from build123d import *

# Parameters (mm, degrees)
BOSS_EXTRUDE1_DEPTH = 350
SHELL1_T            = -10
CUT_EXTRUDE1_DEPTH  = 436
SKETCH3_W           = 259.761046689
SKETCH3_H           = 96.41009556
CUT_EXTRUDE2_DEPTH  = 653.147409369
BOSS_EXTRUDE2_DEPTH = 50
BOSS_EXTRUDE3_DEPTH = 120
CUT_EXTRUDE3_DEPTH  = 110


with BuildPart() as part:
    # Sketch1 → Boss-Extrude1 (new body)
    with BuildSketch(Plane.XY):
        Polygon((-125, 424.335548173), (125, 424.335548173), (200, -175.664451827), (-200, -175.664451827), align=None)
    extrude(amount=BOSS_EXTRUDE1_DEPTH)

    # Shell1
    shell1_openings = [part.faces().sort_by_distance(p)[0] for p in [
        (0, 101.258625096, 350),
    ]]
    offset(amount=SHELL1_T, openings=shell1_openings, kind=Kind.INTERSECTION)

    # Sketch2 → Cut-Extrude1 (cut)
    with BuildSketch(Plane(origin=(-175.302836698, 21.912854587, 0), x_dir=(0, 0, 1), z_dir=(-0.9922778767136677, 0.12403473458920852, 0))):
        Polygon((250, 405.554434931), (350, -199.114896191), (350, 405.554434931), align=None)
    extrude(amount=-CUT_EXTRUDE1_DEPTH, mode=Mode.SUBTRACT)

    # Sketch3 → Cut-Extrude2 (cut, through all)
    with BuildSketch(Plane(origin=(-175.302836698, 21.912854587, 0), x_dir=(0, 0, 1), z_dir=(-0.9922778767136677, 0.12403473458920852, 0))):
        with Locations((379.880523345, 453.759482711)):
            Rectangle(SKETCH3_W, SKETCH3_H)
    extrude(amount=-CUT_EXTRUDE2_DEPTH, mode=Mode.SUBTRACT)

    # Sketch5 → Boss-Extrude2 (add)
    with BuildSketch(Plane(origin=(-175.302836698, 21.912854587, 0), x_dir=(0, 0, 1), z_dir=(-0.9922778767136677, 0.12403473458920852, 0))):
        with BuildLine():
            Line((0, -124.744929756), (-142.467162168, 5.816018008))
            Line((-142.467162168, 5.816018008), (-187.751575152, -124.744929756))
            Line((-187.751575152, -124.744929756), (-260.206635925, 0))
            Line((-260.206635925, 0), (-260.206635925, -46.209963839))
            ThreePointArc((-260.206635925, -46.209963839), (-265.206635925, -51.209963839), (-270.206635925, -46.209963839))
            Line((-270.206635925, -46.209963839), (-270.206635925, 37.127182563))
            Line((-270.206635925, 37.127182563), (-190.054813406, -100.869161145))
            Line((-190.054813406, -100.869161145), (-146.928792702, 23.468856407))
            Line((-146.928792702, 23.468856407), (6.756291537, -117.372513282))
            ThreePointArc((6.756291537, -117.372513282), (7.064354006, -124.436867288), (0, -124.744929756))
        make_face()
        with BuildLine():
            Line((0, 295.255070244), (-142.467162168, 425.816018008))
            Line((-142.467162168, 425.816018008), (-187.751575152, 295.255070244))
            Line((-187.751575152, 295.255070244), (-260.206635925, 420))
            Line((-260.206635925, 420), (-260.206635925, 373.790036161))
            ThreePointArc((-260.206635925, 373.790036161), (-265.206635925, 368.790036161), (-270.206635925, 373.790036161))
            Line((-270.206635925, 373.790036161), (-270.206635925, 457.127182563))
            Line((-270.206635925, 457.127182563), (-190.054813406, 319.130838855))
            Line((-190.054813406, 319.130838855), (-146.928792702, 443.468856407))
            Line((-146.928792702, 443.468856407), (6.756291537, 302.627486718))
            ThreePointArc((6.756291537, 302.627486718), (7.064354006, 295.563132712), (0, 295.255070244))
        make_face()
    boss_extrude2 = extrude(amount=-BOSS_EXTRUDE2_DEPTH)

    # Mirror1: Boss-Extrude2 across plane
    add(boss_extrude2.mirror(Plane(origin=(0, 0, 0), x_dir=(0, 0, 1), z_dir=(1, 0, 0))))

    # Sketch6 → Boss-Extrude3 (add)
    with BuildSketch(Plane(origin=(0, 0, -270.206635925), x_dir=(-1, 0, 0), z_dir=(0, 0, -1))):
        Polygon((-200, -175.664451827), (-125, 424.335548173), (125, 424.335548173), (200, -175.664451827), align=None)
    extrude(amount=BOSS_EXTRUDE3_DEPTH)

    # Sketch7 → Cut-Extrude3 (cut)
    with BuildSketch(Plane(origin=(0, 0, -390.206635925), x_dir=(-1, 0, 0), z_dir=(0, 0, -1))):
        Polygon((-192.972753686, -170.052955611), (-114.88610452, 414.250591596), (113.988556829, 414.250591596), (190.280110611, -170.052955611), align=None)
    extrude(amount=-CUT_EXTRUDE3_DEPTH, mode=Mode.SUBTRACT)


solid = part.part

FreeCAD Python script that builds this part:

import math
import FreeCAD as App
import Part
import Sketcher


def faces_at(feature, points):
    """Names of the faces that lie closest to the given points."""
    faces = feature.Shape.Faces
    near = lambda p: min(range(len(faces)), key=lambda i: faces[i].distToShape(Part.Vertex(*p))[0])
    return sorted({f"Face{near(p) + 1}" for p in points})

doc = App.newDocument("Part")
body = doc.addObject("PartDesign::Body", "Body")

# Sketch on XY plane
sketch1 = body.newObject("Sketcher::SketchObject", "Sketch")
sketch1.AttachmentSupport = (doc.getObject("XY_Plane"), [""])
sketch1.MapMode = "FlatFace"
sketch1.addGeometry([
    Part.LineSegment(App.Vector(125, 424, 0), App.Vector(-125, 424, 0)),
    Part.LineSegment(App.Vector(-125, 424, 0), App.Vector(-200, -176, 0)),
    Part.LineSegment(App.Vector(-200, -176, 0), App.Vector(200, -176, 0)),
    Part.LineSegment(App.Vector(200, -176, 0), App.Vector(125, 424, 0)),
], False)
sketch1.addConstraint([
    Sketcher.Constraint("Coincident", 0, 2, 1, 1),
    Sketcher.Constraint("Coincident", 1, 2, 2, 1),
    Sketcher.Constraint("Coincident", 2, 2, 3, 1),
    Sketcher.Constraint("Coincident", 3, 2, 0, 1),
    Sketcher.Constraint("Horizontal", 0),
    Sketcher.Constraint("Horizontal", 2),
    Sketcher.Constraint("Equal", 1, 3),
    Sketcher.Constraint("DistanceX", 0, 2, 0, 1, 250.0),
    Sketcher.Constraint("DistanceX", 2, 1, 2, 2, 400.0),
    Sketcher.Constraint("DistanceX", 0, 2, -1, 1, 125.0),
    Sketcher.Constraint("DistanceY", 1, 2, 0, 2, 600.0),
    Sketcher.Constraint("DistanceY", -1, 1, 0, 2, 424.335548),
])
pad1 = body.newObject("PartDesign::Pad", "Pad")
pad1.Profile = sketch1
pad1.Length = 350
doc.recompute()

thickness = body.newObject("PartDesign::Thickness", "Thickness")
thickness.Base = (pad1, faces_at(pad1, [(0, 124.336, 350)]))
thickness.Value = 10
thickness.Reversed = True
thickness.Join = "Intersection"

# Sketch on an angled plane
sketch2 = body.newObject("Sketcher::SketchObject", "Sketch001")
sketch2.Placement = App.Placement(App.Vector(-175.302837, 21.912855, 0), App.Rotation(App.Vector(0, 0, 1), App.Vector(0.124034735, 0.992277877, 0), App.Vector(-0.992277877, 0.124034735, 0), "ZXY"))
sketch2.addGeometry([
    Part.LineSegment(App.Vector(250, 406, 0), App.Vector(350, -199, 0)),
    Part.LineSegment(App.Vector(350, -199, 0), App.Vector(350, 406, 0)),
    Part.LineSegment(App.Vector(350, 406, 0), App.Vector(250, 406, 0)),
], False)
sketch2.addConstraint([
    Sketcher.Constraint("Coincident", 0, 2, 1, 1),
    Sketcher.Constraint("Coincident", 1, 2, 2, 1),
    Sketcher.Constraint("Coincident", 2, 2, 0, 1),
    Sketcher.Constraint("Vertical", 1),
    Sketcher.Constraint("Horizontal", 2),
    Sketcher.Constraint("DistanceX", 2, 2, 2, 1, 100.0),
    Sketcher.Constraint("DistanceX", -1, 1, 0, 2, 350.0),
    Sketcher.Constraint("DistanceY", 1, 1, 1, 2, 604.669332),
    Sketcher.Constraint("DistanceY", 0, 2, -1, 1, 199.114896),
])
pocket1 = body.newObject("PartDesign::Pocket", "Pocket")
pocket1.Profile = sketch2
pocket1.Length = 436

# Sketch on an angled plane
sketch3 = body.newObject("Sketcher::SketchObject", "Sketch002")
sketch3.Placement = App.Placement(App.Vector(-175.302837, 21.912855, 0), App.Rotation(App.Vector(0, 0, 1), App.Vector(0.124034735, 0.992277877, 0), App.Vector(-0.992277877, 0.124034735, 0), "ZXY"))
sketch3.addGeometry([
    Part.LineSegment(App.Vector(250, 502, 0), App.Vector(250, 406, 0)),
    Part.LineSegment(App.Vector(250, 406, 0), App.Vector(510, 406, 0)),
    Part.LineSegment(App.Vector(510, 406, 0), App.Vector(510, 502, 0)),
    Part.LineSegment(App.Vector(510, 502, 0), App.Vector(250, 502, 0)),
], False)
sketch3.addConstraint([
    Sketcher.Constraint("Coincident", 0, 2, 1, 1),
    Sketcher.Constraint("Coincident", 1, 2, 2, 1),
    Sketcher.Constraint("Coincident", 2, 2, 3, 1),
    Sketcher.Constraint("Coincident", 3, 2, 0, 1),
    Sketcher.Constraint("Vertical", 0),
    Sketcher.Constraint("Horizontal", 1),
    Sketcher.Constraint("Vertical", 2),
    Sketcher.Constraint("Horizontal", 3),
    Sketcher.Constraint("DistanceX", -1, 1, 0, 2, 250.0),
    Sketcher.Constraint("DistanceX", 1, 1, 1, 2, 259.761047),
    Sketcher.Constraint("DistanceY", 0, 2, 0, 1, 96.410096),
    Sketcher.Constraint("DistanceY", -1, 1, 2, 2, 501.964531),
])
pocket2 = body.newObject("PartDesign::Pocket", "Pocket001")
pocket2.Profile = sketch3
pocket2.Type = "ThroughAll"

# Sketch on an angled plane
sketch4 = body.newObject("Sketcher::SketchObject", "Sketch003")
sketch4.Placement = App.Placement(App.Vector(-175.302837, 21.912855, 0), App.Rotation(App.Vector(0, 0, 1), App.Vector(0.124034735, 0.992277877, 0), App.Vector(-0.992277877, 0.124034735, 0), "ZXY"))
sketch4.addGeometry([
    Part.LineSegment(App.Vector(-142.467162, 5.816018, 0), App.Vector(0, -124.74493, 0)),  # 0
    Part.ArcOfCircle(Part.Circle(App.Vector(3.378146, -121.058722, 0), App.Vector(0, 0, 1), 5), math.radians(-132.503027), math.radians(47.496973)),  # 1
    Part.LineSegment(App.Vector(6.756292, -117.372513, 0), App.Vector(-146.928793, 23.468856, 0)),  # 2
    Part.LineSegment(App.Vector(-146.928793, 23.468856, 0), App.Vector(-190.054813, -100.869161, 0)),  # 3
    Part.LineSegment(App.Vector(-190.054813, -100.869161, 0), App.Vector(-270.206636, 37.127183, 0)),  # 4
    Part.LineSegment(App.Vector(-270.206636, 37.127183, 0), App.Vector(-270.206636, -46.209964, 0)),  # 5
    Part.ArcOfCircle(Part.Circle(App.Vector(-265.206636, -46.209964, 0), App.Vector(0, 0, 1), 5), math.radians(180), math.radians(360)),  # 6
    Part.LineSegment(App.Vector(-260.206636, -46.209964, 0), App.Vector(-260.206636, 0, 0)),  # 7
    Part.LineSegment(App.Vector(-260.206636, 0, 0), App.Vector(-187.751575, -124.74493, 0)),  # 8
    Part.LineSegment(App.Vector(-187.751575, -124.74493, 0), App.Vector(-142.467162, 5.816018, 0)),  # 9
    Part.LineSegment(App.Vector(-142.467162, 425.816018, 0), App.Vector(0, 295.25507, 0)),  # 10
    Part.ArcOfCircle(Part.Circle(App.Vector(3.378146, 298.941279, 0), App.Vector(0, 0, 1), 5), math.radians(-132.503027), math.radians(47.496973)),  # 11
    Part.LineSegment(App.Vector(6.756292, 302.627487, 0), App.Vector(-146.928793, 443.468857, 0)),  # 12
    Part.LineSegment(App.Vector(-146.928793, 443.468857, 0), App.Vector(-190.054813, 319.130839, 0)),  # 13
    Part.LineSegment(App.Vector(-190.054813, 319.130839, 0), App.Vector(-270.206636, 457.127183, 0)),  # 14
    Part.LineSegment(App.Vector(-270.206636, 457.127183, 0), App.Vector(-270.206636, 373.790036, 0)),  # 15
    Part.ArcOfCircle(Part.Circle(App.Vector(-265.206636, 373.790036, 0), App.Vector(0, 0, 1), 5), math.radians(180), math.radians(360)),  # 16
    Part.LineSegment(App.Vector(-260.206636, 373.790036, 0), App.Vector(-260.206636, 420, 0)),  # 17
    Part.LineSegment(App.Vector(-260.206636, 420, 0), App.Vector(-187.751575, 295.25507, 0)),  # 18
    Part.LineSegment(App.Vector(-187.751575, 295.25507, 0), App.Vector(-142.467162, 425.816018, 0)),  # 19
], False)
sketch4.addConstraint([
    Sketcher.Constraint("Coincident", 0, 2, 1, 1),
    Sketcher.Constraint("Coincident", 1, 2, 2, 1),
    Sketcher.Constraint("Coincident", 2, 2, 3, 1),
    Sketcher.Constraint("Coincident", 3, 2, 4, 1),
    Sketcher.Constraint("Coincident", 4, 2, 5, 1),
    Sketcher.Constraint("Coincident", 5, 2, 6, 1),
    Sketcher.Constraint("Coincident", 6, 2, 7, 1),
    Sketcher.Constraint("Coincident", 7, 2, 8, 1),
    Sketcher.Constraint("Coincident", 8, 2, 9, 1),
    Sketcher.Constraint("Coincident", 9, 2, 0, 1),
    Sketcher.Constraint("Coincident", 10, 2, 11, 1),
    Sketcher.Constraint("Coincident", 11, 2, 12, 1),
    Sketcher.Constraint("Coincident", 12, 2, 13, 1),
    Sketcher.Constraint("Coincident", 13, 2, 14, 1),
    Sketcher.Constraint("Coincident", 14, 2, 15, 1),
    Sketcher.Constraint("Coincident", 15, 2, 16, 1),
    Sketcher.Constraint("Coincident", 16, 2, 17, 1),
    Sketcher.Constraint("Coincident", 17, 2, 18, 1),
    Sketcher.Constraint("Coincident", 18, 2, 19, 1),
    Sketcher.Constraint("Coincident", 19, 2, 10, 1),
    Sketcher.Constraint("Vertical", 5),
    Sketcher.Constraint("Vertical", 7),
    Sketcher.Constraint("Vertical", 15),
    Sketcher.Constraint("Vertical", 17),
    Sketcher.Constraint("PointOnObject", 0, 2, -2),
    Sketcher.Constraint("PointOnObject", 7, 2, -1),
    Sketcher.Constraint("PointOnObject", 10, 2, -2),
    Sketcher.Constraint("Radius", 1, 5.0),
    Sketcher.Constraint("Radius", 6, 5.0),
    Sketcher.Constraint("Radius", 11, 5.0),
    Sketcher.Constraint("Radius", 16, 5.0),
    Sketcher.Constraint("DistanceY", -1, 1, 17, 2, 420.0),
    Sketcher.Constraint("DistanceY", 1, 3, 11, 3, 420.0),
    Sketcher.Constraint("DistanceY", 6, 3, 16, 3, 420.0),
    Sketcher.Constraint("DistanceY", 2, 2, 12, 2, 420.0),
    Sketcher.Constraint("Distance", 0, 193.243508),
    Sketcher.Constraint("Distance", 2, 208.45958),
    Sketcher.Constraint("Distance", 4, 159.584791),
    Sketcher.Constraint("Distance", 10, 193.243508),
    Sketcher.Constraint("Distance", 12, 208.45958),
    Sketcher.Constraint("Distance", 14, 159.584791),
    Sketcher.Constraint("DistanceY", 5, 2, 5, 1, 83.337146),
    Sketcher.Constraint("DistanceY", 7, 1, 7, 2, 46.209964),
    Sketcher.Constraint("DistanceY", 15, 2, 15, 1, 83.337146),
    Sketcher.Constraint("DistanceY", 17, 1, 17, 2, 46.209964),
    Sketcher.Constraint("DistanceY", 1, 3, -1, 1, 121.058722),
    Sketcher.Constraint("DistanceY", 0, 2, -1, 1, 124.74493),
    Sketcher.Constraint("DistanceX", -1, 1, 1, 2, 6.756292),
    Sketcher.Constraint("DistanceY", 3, 2, -1, 1, 100.869161),
    Sketcher.Constraint("DistanceY", 8, 2, -1, 1, 124.74493),
    Sketcher.Constraint("DistanceY", -1, 1, 9, 2, 5.816018),
    Sketcher.Constraint("DistanceY", -1, 1, 10, 2, 295.25507),
    Sketcher.Constraint("DistanceX", -1, 1, 11, 2, 6.756292),
    Sketcher.Constraint("DistanceY", -1, 1, 13, 2, 319.130839),
    Sketcher.Constraint("DistanceY", -1, 1, 18, 2, 295.25507),
    Sketcher.Constraint("DistanceY", -1, 1, 19, 2, 425.816018),
    Sketcher.Constraint("DistanceX", 6, 3, 1, 3, 268.584782),
    Sketcher.Constraint("DistanceX", 16, 3, 11, 3, 268.584782),
    Sketcher.Constraint("DistanceY", 1, 3, 16, 3, 494.848758),
    Sketcher.Constraint("DistanceY", 6, 3, 2, 2, 69.67882),
    Sketcher.Constraint("DistanceX", 3, 2, 2, 2, 43.126021),
    Sketcher.Constraint("DistanceX", 3, 2, 8, 2, 2.303238),
    Sketcher.Constraint("DistanceX", 13, 2, 12, 2, 43.126021),
    Sketcher.Constraint("DistanceX", 13, 2, 18, 2, 2.303238),
])
pad2 = body.newObject("PartDesign::Pad", "Pad001")
pad2.Profile = sketch4
pad2.Length = 50
pad2.Reversed = True
doc.recompute()

mirrored = body.newObject("PartDesign::Mirrored", "Mirrored")
mirrored.Originals = [pad2]
mirrored.MirrorPlane = (doc.getObject("YZ_Plane"), [""])
body.Tip = mirrored

# Sketch on XY plane
sketch5 = body.newObject("Sketcher::SketchObject", "Sketch004")
sketch5.AttachmentSupport = (doc.getObject("XY_Plane"), [""])
sketch5.MapMode = "FlatFace"
sketch5.AttachmentOffset = App.Placement(App.Vector(0, 0, -270.206636), App.Rotation())
sketch5.addGeometry([
    Part.LineSegment(App.Vector(125, 424, 0), App.Vector(200, -176, 0)),
    Part.LineSegment(App.Vector(200, -176, 0), App.Vector(-200, -176, 0)),
    Part.LineSegment(App.Vector(-200, -176, 0), App.Vector(-125, 424, 0)),
    Part.LineSegment(App.Vector(-125, 424, 0), App.Vector(125, 424, 0)),
], False)
sketch5.addConstraint([
    Sketcher.Constraint("Coincident", 0, 2, 1, 1),
    Sketcher.Constraint("Coincident", 1, 2, 2, 1),
    Sketcher.Constraint("Coincident", 2, 2, 3, 1),
    Sketcher.Constraint("Coincident", 3, 2, 0, 1),
    Sketcher.Constraint("Horizontal", 1),
    Sketcher.Constraint("Horizontal", 3),
    Sketcher.Constraint("Equal", 0, 2),
    Sketcher.Constraint("DistanceX", 1, 2, 1, 1, 400.0),
    Sketcher.Constraint("DistanceX", 3, 1, 3, 2, 250.0),
    Sketcher.Constraint("DistanceX", -1, 1, 0, 2, 200.0),
    Sketcher.Constraint("DistanceY", 1, 2, 2, 2, 600.0),
    Sketcher.Constraint("DistanceY", 0, 2, -1, 1, 175.664452),
])
pad3 = body.newObject("PartDesign::Pad", "Pad002")
pad3.Profile = sketch5
pad3.Length = 120
pad3.Reversed = True

# Sketch on XY plane
sketch6 = body.newObject("Sketcher::SketchObject", "Sketch005")
sketch6.AttachmentSupport = (doc.getObject("XY_Plane"), [""])
sketch6.MapMode = "FlatFace"
sketch6.AttachmentOffset = App.Placement(App.Vector(0, 0, -390.206636), App.Rotation())
sketch6.addGeometry([
    Part.LineSegment(App.Vector(115, 414, 0), App.Vector(193, -170, 0)),
    Part.LineSegment(App.Vector(193, -170, 0), App.Vector(-190, -170, 0)),
    Part.LineSegment(App.Vector(-190, -170, 0), App.Vector(-114, 414, 0)),
    Part.LineSegment(App.Vector(-114, 414, 0), App.Vector(115, 414, 0)),
], False)
sketch6.addConstraint([
    Sketcher.Constraint("Coincident", 0, 2, 1, 1),
    Sketcher.Constraint("Coincident", 1, 2, 2, 1),
    Sketcher.Constraint("Coincident", 2, 2, 3, 1),
    Sketcher.Constraint("Coincident", 3, 2, 0, 1),
    Sketcher.Constraint("Horizontal", 1),
    Sketcher.Constraint("Horizontal", 3),
    Sketcher.Constraint("DistanceX", 3, 1, 3, 2, 228.874661),
    Sketcher.Constraint("Distance", 2, 589.26313),
    Sketcher.Constraint("DistanceX", 1, 2, 1, 1, 383.252864),
    Sketcher.Constraint("DistanceX", 1, 2, -1, 1, 190.280111),
    Sketcher.Constraint("DistanceY", -1, 1, 2, 2, 414.250592),
    Sketcher.Constraint("DistanceX", 2, 2, 0, 2, 306.961311),
])
pocket3 = body.newObject("PartDesign::Pocket", "Pocket002")
pocket3.Profile = sketch6
pocket3.Length = 110
pocket3.Reversed = True

doc.recompute()
